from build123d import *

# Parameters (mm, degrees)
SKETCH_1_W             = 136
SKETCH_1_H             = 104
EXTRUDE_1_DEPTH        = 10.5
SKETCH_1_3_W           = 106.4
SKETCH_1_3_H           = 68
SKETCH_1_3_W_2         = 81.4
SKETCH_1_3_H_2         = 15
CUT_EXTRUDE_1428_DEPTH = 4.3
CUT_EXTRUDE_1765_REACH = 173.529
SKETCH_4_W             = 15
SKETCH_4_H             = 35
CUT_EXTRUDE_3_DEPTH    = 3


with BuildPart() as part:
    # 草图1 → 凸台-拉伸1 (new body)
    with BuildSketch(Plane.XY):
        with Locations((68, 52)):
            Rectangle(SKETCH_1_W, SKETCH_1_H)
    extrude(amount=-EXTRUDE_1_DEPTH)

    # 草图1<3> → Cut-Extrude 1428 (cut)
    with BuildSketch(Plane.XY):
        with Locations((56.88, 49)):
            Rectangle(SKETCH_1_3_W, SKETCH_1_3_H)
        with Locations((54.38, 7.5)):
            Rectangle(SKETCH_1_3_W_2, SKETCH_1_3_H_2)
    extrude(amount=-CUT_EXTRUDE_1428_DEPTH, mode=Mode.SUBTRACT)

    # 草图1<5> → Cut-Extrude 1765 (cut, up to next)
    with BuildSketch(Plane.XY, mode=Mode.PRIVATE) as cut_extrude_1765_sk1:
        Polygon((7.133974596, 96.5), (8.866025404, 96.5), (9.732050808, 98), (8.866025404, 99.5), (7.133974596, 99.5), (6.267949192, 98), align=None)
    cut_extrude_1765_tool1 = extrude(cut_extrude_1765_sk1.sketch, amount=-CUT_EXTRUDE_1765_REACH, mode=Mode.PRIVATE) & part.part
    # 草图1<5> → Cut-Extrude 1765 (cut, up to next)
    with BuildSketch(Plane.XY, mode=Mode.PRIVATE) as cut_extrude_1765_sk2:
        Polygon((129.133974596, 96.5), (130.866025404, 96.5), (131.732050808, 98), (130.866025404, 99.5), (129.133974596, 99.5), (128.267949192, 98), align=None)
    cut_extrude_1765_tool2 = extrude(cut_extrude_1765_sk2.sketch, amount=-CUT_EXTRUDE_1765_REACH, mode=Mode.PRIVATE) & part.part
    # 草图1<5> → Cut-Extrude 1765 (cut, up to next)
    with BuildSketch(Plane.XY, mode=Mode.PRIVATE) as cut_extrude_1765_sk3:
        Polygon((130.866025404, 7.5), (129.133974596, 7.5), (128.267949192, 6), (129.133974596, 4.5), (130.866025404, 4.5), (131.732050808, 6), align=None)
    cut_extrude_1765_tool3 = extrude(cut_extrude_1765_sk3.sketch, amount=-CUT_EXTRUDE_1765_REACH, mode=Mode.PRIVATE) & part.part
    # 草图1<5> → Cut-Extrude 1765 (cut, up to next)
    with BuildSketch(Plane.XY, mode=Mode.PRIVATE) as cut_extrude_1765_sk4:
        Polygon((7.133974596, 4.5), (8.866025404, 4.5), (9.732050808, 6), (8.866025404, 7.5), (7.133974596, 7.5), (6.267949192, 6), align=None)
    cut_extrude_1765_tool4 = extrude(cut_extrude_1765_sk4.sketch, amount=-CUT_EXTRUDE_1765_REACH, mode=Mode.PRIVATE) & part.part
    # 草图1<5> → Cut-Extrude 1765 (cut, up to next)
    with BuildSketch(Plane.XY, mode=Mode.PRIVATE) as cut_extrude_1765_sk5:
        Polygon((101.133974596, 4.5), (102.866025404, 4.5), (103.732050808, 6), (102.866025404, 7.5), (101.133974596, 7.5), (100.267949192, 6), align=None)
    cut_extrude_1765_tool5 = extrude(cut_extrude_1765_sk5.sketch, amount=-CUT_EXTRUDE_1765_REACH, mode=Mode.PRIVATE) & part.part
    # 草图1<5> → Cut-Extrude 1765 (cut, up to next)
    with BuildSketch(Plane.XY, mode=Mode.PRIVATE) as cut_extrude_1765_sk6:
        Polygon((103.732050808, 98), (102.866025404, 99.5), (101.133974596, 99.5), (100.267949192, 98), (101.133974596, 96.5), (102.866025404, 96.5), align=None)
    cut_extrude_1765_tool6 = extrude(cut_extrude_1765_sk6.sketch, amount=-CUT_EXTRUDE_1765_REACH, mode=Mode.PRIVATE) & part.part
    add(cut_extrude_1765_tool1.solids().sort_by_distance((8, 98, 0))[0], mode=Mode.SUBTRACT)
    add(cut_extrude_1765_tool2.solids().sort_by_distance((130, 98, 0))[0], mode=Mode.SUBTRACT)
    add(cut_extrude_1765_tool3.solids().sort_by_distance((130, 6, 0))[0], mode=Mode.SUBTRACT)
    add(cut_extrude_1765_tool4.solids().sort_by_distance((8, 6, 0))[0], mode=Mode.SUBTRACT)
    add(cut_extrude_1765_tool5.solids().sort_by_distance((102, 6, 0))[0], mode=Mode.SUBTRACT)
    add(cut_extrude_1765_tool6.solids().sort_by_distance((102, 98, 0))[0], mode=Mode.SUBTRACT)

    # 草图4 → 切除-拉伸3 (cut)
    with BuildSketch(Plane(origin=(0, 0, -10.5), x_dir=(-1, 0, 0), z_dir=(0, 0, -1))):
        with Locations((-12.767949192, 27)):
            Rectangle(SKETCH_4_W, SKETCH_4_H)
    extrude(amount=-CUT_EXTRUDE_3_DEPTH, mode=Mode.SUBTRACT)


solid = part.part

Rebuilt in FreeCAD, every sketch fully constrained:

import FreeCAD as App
import Part
import Sketcher
Q = App.Units.Quantity

doc = App.newDocument("Part")
params = doc.addObject("Spreadsheet::Sheet", "Params")
for row, (alias, value) in enumerate([
    ("sketch1_width", "136 mm"),
    ("sketch1_height", "104 mm"),
    ("pad1_length", "10.5 mm"),
    ("sketch2_width", "10 mm"),
    ("sketch2_width2", "15 mm"),
    ("sketch2_height", "68 mm"),
    ("sketch2_width3", "81.4 mm"),
    ("pocket1_length", "4.3 mm"),
    ("sketch9_width", "15 mm"),
    ("sketch9_height", "35 mm"),
    ("pocket8_length", "3 mm"),
], start=1):
    params.set(f"A{row}", alias)
    params.set(f"B{row}", "=" + value)
    params.setAlias(f"B{row}", alias)

body = doc.addObject("PartDesign::Body", "Body")

# Sketch on XY plane
sketch1 = body.newObject("Sketcher::SketchObject", "Sketch")
sketch1.AttachmentSupport = (doc.getObject("XY_Plane"), [""])
sketch1.MapMode = "FlatFace"
sketch1.addGeometry(Part.LineSegment(App.Vector(0, 104, 0), App.Vector(0, 0, 0)), False)
sketch1.addGeometry(Part.LineSegment(App.Vector(0, 0, 0), App.Vector(136, 0, 0)), False)
sketch1.addGeometry(Part.LineSegment(App.Vector(136, 0, 0), App.Vector(136, 104, 0)), False)
sketch1.addGeometry(Part.LineSegment(App.Vector(136, 104, 0), App.Vector(0, 104, 0)), False)
sketch1.addConstraint(Sketcher.Constraint("Coincident", 0, 2, 1, 1))
sketch1.addConstraint(Sketcher.Constraint("Coincident", 1, 2, 2, 1))
sketch1.addConstraint(Sketcher.Constraint("Coincident", 2, 2, 3, 1))
sketch1.addConstraint(Sketcher.Constraint("Coincident", 3, 2, 0, 1))
sketch1.addConstraint(Sketcher.Constraint("Vertical", 0))
sketch1.addConstraint(Sketcher.Constraint("Horizontal", 1))
sketch1.addConstraint(Sketcher.Constraint("Vertical", 2))
sketch1.addConstraint(Sketcher.Constraint("Horizontal", 3))
sketch1.addConstraint(Sketcher.Constraint("Coincident", 0, 2, -1, 1))
sketch1.addConstraint(Sketcher.Constraint("DistanceX", 1, 1, 1, 2, 136.0))
sketch1.addConstraint(Sketcher.Constraint("DistanceY", 0, 2, 0, 1, 104.0))
sketch1.setExpression("Constraints[9]", "Params.sketch1_width")
sketch1.setExpression("Constraints[10]", "Params.sketch1_height")
pad1 = body.newObject("PartDesign::Pad", "Pad")
pad1.Profile = sketch1
pad1.setExpression("Length", "Params.pad1_length")
pad1.Reversed = True

# Sketch on XY plane
sketch2 = body.newObject("Sketcher::SketchObject", "Sketch001")
sketch2.AttachmentSupport = (doc.getObject("XY_Plane"), [""])
sketch2.MapMode = "FlatFace"
sketch2.addGeometry(Part.LineSegment(App.Vector(4, 83, 0), App.Vector(4, 15, 0)), False)
sketch2.addGeometry(Part.LineSegment(App.Vector(4, 15, 0), App.Vector(14, 15, 0)), False)
sketch2.addGeometry(Part.LineSegment(App.Vector(14, 15, 0), App.Vector(14, 0, 0)), False)
sketch2.addGeometry(Part.LineSegment(App.Vector(14, 0, 0), App.Vector(95, 0, 0)), False)
sketch2.addGeometry(Part.LineSegment(App.Vector(95, 0, 0), App.Vector(95, 15, 0)), False)
sketch2.addGeometry(Part.LineSegment(App.Vector(95, 15, 0), App.Vector(110, 15, 0)), False)
sketch2.addGeometry(Part.LineSegment(App.Vector(110, 15, 0), App.Vector(110, 83, 0)), False)
sketch2.addGeometry(Part.LineSegment(App.Vector(110, 83, 0), App.Vector(4, 83, 0)), False)
sketch2.addConstraint(Sketcher.Constraint("Coincident", 0, 2, 1, 1))
sketch2.addConstraint(Sketcher.Constraint("Coincident", 1, 2, 2, 1))
sketch2.addConstraint(Sketcher.Constraint("Coincident", 2, 2, 3, 1))
sketch2.addConstraint(Sketcher.Constraint("Coincident", 3, 2, 4, 1))
sketch2.addConstraint(Sketcher.Constraint("Coincident", 4, 2, 5, 1))
sketch2.addConstraint(Sketcher.Constraint("Coincident", 5, 2, 6, 1))
sketch2.addConstraint(Sketcher.Constraint("Coincident", 6, 2, 7, 1))
sketch2.addConstraint(Sketcher.Constraint("Coincident", 7, 2, 0, 1))
sketch2.addConstraint(Sketcher.Constraint("Vertical", 0))
sketch2.addConstraint(Sketcher.Constraint("Horizontal", 1))
sketch2.addConstraint(Sketcher.Constraint("Vertical", 2))
sketch2.addConstraint(Sketcher.Constraint("Horizontal", 3))
sketch2.addConstraint(Sketcher.Constraint("Vertical", 4))
sketch2.addConstraint(Sketcher.Constraint("Horizontal", 5))
sketch2.addConstraint(Sketcher.Constraint("Vertical", 6))
sketch2.addConstraint(Sketcher.Constraint("Horizontal", 7))
sketch2.addConstraint(Sketcher.Constraint("PointOnObject", 2, 2, -1))
sketch2.addConstraint(Sketcher.Constraint("Horizontal", 1, 2, 4, 2))
sketch2.addConstraint(Sketcher.Constraint("Equal", 5, 2))
sketch2.addConstraint(Sketcher.Constraint("DistanceX", 1, 1, 1, 2, 10.0))
sketch2.addConstraint(Sketcher.Constraint("DistanceX", 5, 1, 5, 2, 15.0))
sketch2.addConstraint(Sketcher.Constraint("DistanceY", 0, 2, 0, 1, 68.0))
sketch2.addConstraint(Sketcher.Constraint("DistanceX", 3, 1, 3, 2, 81.4))
sketch2.addConstraint(Sketcher.Constraint("DistanceX", -1, 1, 0, 2, 3.68))
sketch2.setExpression("Constraints[19]", "Params.sketch2_width")
sketch2.setExpression("Constraints[20]", "Params.sketch2_width2")
sketch2.setExpression("Constraints[21]", "Params.sketch2_height")
sketch2.setExpression("Constraints[22]", "Params.sketch2_width3")
pocket1 = body.newObject("PartDesign::Pocket", "Pocket")
pocket1.Profile = sketch2
pocket1.setExpression("Length", "Params.pocket1_length")

# Sketch on XY plane
sketch3 = body.newObject("Sketcher::SketchObject", "Sketch002")
sketch3.AttachmentSupport = (doc.getObject("XY_Plane"), [""])
sketch3.MapMode = "FlatFace"
sketch3.addGeometry(Part.LineSegment(App.Vector(7.1, 96.5, 0), App.Vector(8.9, 96.5, 0)), False)
sketch3.addGeometry(Part.LineSegment(App.Vector(8.9, 96.5, 0), App.Vector(9.7, 98, 0)), False)
sketch3.addGeometry(Part.LineSegment(App.Vector(9.7, 98, 0), App.Vector(8.9, 99.5, 0)), False)
sketch3.addGeometry(Part.LineSegment(App.Vector(8.9, 99.5, 0), App.Vector(7.1, 99.5, 0)), False)
sketch3.addGeometry(Part.LineSegment(App.Vector(7.1, 99.5, 0), App.Vector(6.3, 98, 0)), False)
sketch3.addGeometry(Part.LineSegment(App.Vector(6.3, 98, 0), App.Vector(7.1, 96.5, 0)), False)
sketch3.addConstraint(Sketcher.Constraint("Coincident", 0, 2, 1, 1))
sketch3.addConstraint(Sketcher.Constraint("Coincident", 1, 2, 2, 1))
sketch3.addConstraint(Sketcher.Constraint("Coincident", 2, 2, 3, 1))
sketch3.addConstraint(Sketcher.Constraint("Coincident", 3, 2, 4, 1))
sketch3.addConstraint(Sketcher.Constraint("Coincident", 4, 2, 5, 1))
sketch3.addConstraint(Sketcher.Constraint("Coincident", 5, 2, 0, 1))
sketch3.addConstraint(Sketcher.Constraint("Horizontal", 0))
sketch3.addConstraint(Sketcher.Constraint("Horizontal", 3))
sketch3.addConstraint(Sketcher.Constraint("Parallel", 1, 4))
sketch3.addConstraint(Sketcher.Constraint("Parallel", 2, 5))
sketch3.addConstraint(Sketcher.Constraint("Horizontal", 1, 2, 4, 2))
sketch3.addConstraint(Sketcher.Constraint("Vertical", 0, 2, 2, 2))
sketch3.addConstraint(Sketcher.Constraint("Vertical", 3, 2, 5, 2))
sketch3.addConstraint(Sketcher.Constraint("Angle", 1, Q("60 deg")))
sketch3.addConstraint(Sketcher.Constraint("DistanceY", -1, 1, 1, 2, 98.0))
sketch3.addConstraint(Sketcher.Constraint("DistanceY", 0, 2, 2, 2, 3.0))
sketch3.addConstraint(Sketcher.Constraint("DistanceX", 0, 1, 0, 2, 1.732051))
sketch3.addConstraint(Sketcher.Constraint("DistanceX", -1, 1, 1, 2, 9.732051))
pocket2 = body.newObject("PartDesign::Pocket", "Pocket001")
pocket2.Profile = sketch3
pocket2.Type = "UpToFirst"

# Sketch on XY plane
sketch4 = body.newObject("Sketcher::SketchObject", "Sketch003")
sketch4.AttachmentSupport = (doc.getObject("XY_Plane"), [""])
sketch4.MapMode = "FlatFace"
sketch4.addGeometry(Part.LineSegment(App.Vector(129.1, 96.5, 0), App.Vector(130.9, 96.5, 0)), False)
sketch4.addGeometry(Part.LineSegment(App.Vector(130.9, 96.5, 0), App.Vector(131.7, 98, 0)), False)
sketch4.addGeometry(Part.LineSegment(App.Vector(131.7, 98, 0), App.Vector(130.9, 99.5, 0)), False)
sketch4.addGeometry(Part.LineSegment(App.Vector(130.9, 99.5, 0), App.Vector(129.1, 99.5, 0)), False)
sketch4.addGeometry(Part.LineSegment(App.Vector(129.1, 99.5, 0), App.Vector(128.3, 98, 0)), False)
sketch4.addGeometry(Part.LineSegment(App.Vector(128.3, 98, 0), App.Vector(129.1, 96.5, 0)), False)
sketch4.addConstraint(Sketcher.Constraint("Coincident", 0, 2, 1, 1))
sketch4.addConstraint(Sketcher.Constraint("Coincident", 1, 2, 2, 1))
sketch4.addConstraint(Sketcher.Constraint("Coincident", 2, 2, 3, 1))
sketch4.addConstraint(Sketcher.Constraint("Coincident", 3, 2, 4, 1))
sketch4.addConstraint(Sketcher.Constraint("Coincident", 4, 2, 5, 1))
sketch4.addConstraint(Sketcher.Constraint("Coincident", 5, 2, 0, 1))
sketch4.addConstraint(Sketcher.Constraint("Horizontal", 0))
sketch4.addConstraint(Sketcher.Constraint("Horizontal", 3))
sketch4.addConstraint(Sketcher.Constraint("Parallel", 1, 4))
sketch4.addConstraint(Sketcher.Constraint("Parallel", 2, 5))
sketch4.addConstraint(Sketcher.Constraint("Horizontal", 1, 2, 4, 2))
sketch4.addConstraint(Sketcher.Constraint("Vertical", 0, 2, 2, 2))
sketch4.addConstraint(Sketcher.Constraint("Vertical", 3, 2, 5, 2))
sketch4.addConstraint(Sketcher.Constraint("Angle", 1, Q("60 deg")))
sketch4.addConstraint(Sketcher.Constraint("DistanceY", -1, 1, 1, 2, 98.0))
sketch4.addConstraint(Sketcher.Constraint("DistanceY", 0, 2, 2, 2, 3.0))
sketch4.addConstraint(Sketcher.Constraint("DistanceX", 0, 1, 0, 2, 1.732051))
sketch4.addConstraint(Sketcher.Constraint("DistanceX", -1, 1, 1, 2, 131.732051))
pocket3 = body.newObject("PartDesign::Pocket", "Pocket002")
pocket3.Profile = sketch4
pocket3.Type = "UpToFirst"

# Sketch on XY plane
sketch5 = body.newObject("Sketcher::SketchObject", "Sketch004")
sketch5.AttachmentSupport = (doc.getObject("XY_Plane"), [""])
sketch5.MapMode = "FlatFace"
sketch5.addGeometry(Part.LineSegment(App.Vector(130.9, 7.5, 0), App.Vector(129.1, 7.5, 0)), False)
sketch5.addGeometry(Part.LineSegment(App.Vector(129.1, 7.5, 0), App.Vector(128.3, 6, 0)), False)
sketch5.addGeometry(Part.LineSegment(App.Vector(128.3, 6, 0), App.Vector(129.1, 4.5, 0)), False)
sketch5.addGeometry(Part.LineSegment(App.Vector(129.1, 4.5, 0), App.Vector(130.9, 4.5, 0)), False)
sketch5.addGeometry(Part.LineSegment(App.Vector(130.9, 4.5, 0), App.Vector(131.7, 6, 0)), False)
sketch5.addGeometry(Part.LineSegment(App.Vector(131.7, 6, 0), App.Vector(130.9, 7.5, 0)), False)
sketch5.addConstraint(Sketcher.Constraint("Coincident", 0, 2, 1, 1))
sketch5.addConstraint(Sketcher.Constraint("Coincident", 1, 2, 2, 1))
sketch5.addConstraint(Sketcher.Constraint("Coincident", 2, 2, 3, 1))
sketch5.addConstraint(Sketcher.Constraint("Coincident", 3, 2, 4, 1))
sketch5.addConstraint(Sketcher.Constraint("Coincident", 4, 2, 5, 1))
sketch5.addConstraint(Sketcher.Constraint("Coincident", 5, 2, 0, 1))
sketch5.addConstraint(Sketcher.Constraint("Horizontal", 0))
sketch5.addConstraint(Sketcher.Constraint("Horizontal", 3))
sketch5.addConstraint(Sketcher.Constraint("Parallel", 1, 4))
sketch5.addConstraint(Sketcher.Constraint("Parallel", 2, 5))
sketch5.addConstraint(Sketcher.Constraint("Horizontal", 1, 2, 4, 2))
sketch5.addConstraint(Sketcher.Constraint("Vertical", 0, 2, 2, 2))
sketch5.addConstraint(Sketcher.Constraint("Vertical", 3, 2, 5, 2))
sketch5.addConstraint(Sketcher.Constraint("Angle", 1, Q("-120 deg")))
sketch5.addConstraint(Sketcher.Constraint("DistanceY", -1, 1, 1, 2, 6.0))
sketch5.addConstraint(Sketcher.Constraint("DistanceY", 2, 2, 0, 2, 3.0))
sketch5.addConstraint(Sketcher.Constraint("DistanceX", 0, 2, 0, 1, 1.732051))
sketch5.addConstraint(Sketcher.Constraint("DistanceX", -1, 1, 1, 2, 128.267949))
pocket4 = body.newObject("PartDesign::Pocket", "Pocket003")
pocket4.Profile = sketch5
pocket4.Type = "UpToFirst"

# Sketch on XY plane
sketch6 = body.newObject("Sketcher::SketchObject", "Sketch005")
sketch6.AttachmentSupport = (doc.getObject("XY_Plane"), [""])
sketch6.MapMode = "FlatFace"
sketch6.addGeometry(Part.LineSegment(App.Vector(7.1, 4.5, 0), App.Vector(8.9, 4.5, 0)), False)
sketch6.addGeometry(Part.LineSegment(App.Vector(8.9, 4.5, 0), App.Vector(9.7, 6, 0)), False)
sketch6.addGeometry(Part.LineSegment(App.Vector(9.7, 6, 0), App.Vector(8.9, 7.5, 0)), False)
sketch6.addGeometry(Part.LineSegment(App.Vector(8.9, 7.5, 0), App.Vector(7.1, 7.5, 0)), False)
sketch6.addGeometry(Part.LineSegment(App.Vector(7.1, 7.5, 0), App.Vector(6.3, 6, 0)), False)
sketch6.addGeometry(Part.LineSegment(App.Vector(6.3, 6, 0), App.Vector(7.1, 4.5, 0)), False)
sketch6.addConstraint(Sketcher.Constraint("Coincident", 0, 2, 1, 1))
sketch6.addConstraint(Sketcher.Constraint("Coincident", 1, 2, 2, 1))
sketch6.addConstraint(Sketcher.Constraint("Coincident", 2, 2, 3, 1))
sketch6.addConstraint(Sketcher.Constraint("Coincident", 3, 2, 4, 1))
sketch6.addConstraint(Sketcher.Constraint("Coincident", 4, 2, 5, 1))
sketch6.addConstraint(Sketcher.Constraint("Coincident", 5, 2, 0, 1))
sketch6.addConstraint(Sketcher.Constraint("Horizontal", 0))
sketch6.addConstraint(Sketcher.Constraint("Horizontal", 3))
sketch6.addConstraint(Sketcher.Constraint("Parallel", 1, 4))
sketch6.addConstraint(Sketcher.Constraint("Parallel", 2, 5))
sketch6.addConstraint(Sketcher.Constraint("Horizontal", 1, 2, 4, 2))
sketch6.addConstraint(Sketcher.Constraint("Vertical", 0, 2, 2, 2))
sketch6.addConstraint(Sketcher.Constraint("Vertical", 3, 2, 5, 2))
sketch6.addConstraint(Sketcher.Constraint("Angle", 1, Q("60 deg")))
sketch6.addConstraint(Sketcher.Constraint("DistanceY", -1, 1, 1, 2, 6.0))
sketch6.addConstraint(Sketcher.Constraint("DistanceY", 0, 2, 2, 2, 3.0))
sketch6.addConstraint(Sketcher.Constraint("DistanceX", 0, 1, 0, 2, 1.732051))
sketch6.addConstraint(Sketcher.Constraint("DistanceX", -1, 1, 1, 2, 9.732051))
pocket5 = body.newObject("PartDesign::Pocket", "Pocket004")
pocket5.Profile = sketch6
pocket5.Type = "UpToFirst"

# Sketch on XY plane
sketch7 = body.newObject("Sketcher::SketchObject", "Sketch006")
sketch7.AttachmentSupport = (doc.getObject("XY_Plane"), [""])
sketch7.MapMode = "FlatFace"
sketch7.addGeometry(Part.LineSegment(App.Vector(101.1, 4.5, 0), App.Vector(102.9, 4.5, 0)), False)
sketch7.addGeometry(Part.LineSegment(App.Vector(102.9, 4.5, 0), App.Vector(103.7, 6, 0)), False)
sketch7.addGeometry(Part.LineSegment(App.Vector(103.7, 6, 0), App.Vector(102.9, 7.5, 0)), False)
sketch7.addGeometry(Part.LineSegment(App.Vector(102.9, 7.5, 0), App.Vector(101.1, 7.5, 0)), False)
sketch7.addGeometry(Part.LineSegment(App.Vector(101.1, 7.5, 0), App.Vector(100.3, 6, 0)), False)
sketch7.addGeometry(Part.LineSegment(App.Vector(100.3, 6, 0), App.Vector(101.1, 4.5, 0)), False)
sketch7.addConstraint(Sketcher.Constraint("Coincident", 0, 2, 1, 1))
sketch7.addConstraint(Sketcher.Constraint("Coincident", 1, 2, 2, 1))
sketch7.addConstraint(Sketcher.Constraint("Coincident", 2, 2, 3, 1))
sketch7.addConstraint(Sketcher.Constraint("Coincident", 3, 2, 4, 1))
sketch7.addConstraint(Sketcher.Constraint("Coincident", 4, 2, 5, 1))
sketch7.addConstraint(Sketcher.Constraint("Coincident", 5, 2, 0, 1))
sketch7.addConstraint(Sketcher.Constraint("Horizontal", 0))
sketch7.addConstraint(Sketcher.Constraint("Horizontal", 3))
sketch7.addConstraint(Sketcher.Constraint("Parallel", 1, 4))
sketch7.addConstraint(Sketcher.Constraint("Parallel", 2, 5))
sketch7.addConstraint(Sketcher.Constraint("Horizontal", 1, 2, 4, 2))
sketch7.addConstraint(Sketcher.Constraint("Vertical", 0, 2, 2, 2))
sketch7.addConstraint(Sketcher.Constraint("Vertical", 3, 2, 5, 2))
sketch7.addConstraint(Sketcher.Constraint("Angle", 1, Q("60 deg")))
sketch7.addConstraint(Sketcher.Constraint("DistanceY", -1, 1, 1, 2, 6.0))
sketch7.addConstraint(Sketcher.Constraint("DistanceY", 0, 2, 2, 2, 3.0))
sketch7.addConstraint(Sketcher.Constraint("DistanceX", 0, 1, 0, 2, 1.732051))
sketch7.addConstraint(Sketcher.Constraint("DistanceX", -1, 1, 1, 2, 103.732051))
pocket6 = body.newObject("PartDesign::Pocket", "Pocket005")
pocket6.Profile = sketch7
pocket6.Type = "UpToFirst"

# Sketch on XY plane
sketch8 = body.newObject("Sketcher::SketchObject", "Sketch007")
sketch8.AttachmentSupport = (doc.getObject("XY_Plane"), [""])
sketch8.MapMode = "FlatFace"
sketch8.addGeometry(Part.LineSegment(App.Vector(103.7, 98, 0), App.Vector(102.9, 99.5, 0)), False)
sketch8.addGeometry(Part.LineSegment(App.Vector(102.9, 99.5, 0), App.Vector(101.1, 99.5, 0)), False)
sketch8.addGeometry(Part.LineSegment(App.Vector(101.1, 99.5, 0), App.Vector(100.3, 98, 0)), False)
sketch8.addGeometry(Part.LineSegment(App.Vector(100.3, 98, 0), App.Vector(101.1, 96.5, 0)), False)
sketch8.addGeometry(Part.LineSegment(App.Vector(101.1, 96.5, 0), App.Vector(102.9, 96.5, 0)), False)
sketch8.addGeometry(Part.LineSegment(App.Vector(102.9, 96.5, 0), App.Vector(103.7, 98, 0)), False)
sketch8.addConstraint(Sketcher.Constraint("Coincident", 0, 2, 1, 1))
sketch8.addConstraint(Sketcher.Constraint("Coincident", 1, 2, 2, 1))
sketch8.addConstraint(Sketcher.Constraint("Coincident", 2, 2, 3, 1))
sketch8.addConstraint(Sketcher.Constraint("Coincident", 3, 2, 4, 1))
sketch8.addConstraint(Sketcher.Constraint("Coincident", 4, 2, 5, 1))
sketch8.addConstraint(Sketcher.Constraint("Coincident", 5, 2, 0, 1))
sketch8.addConstraint(Sketcher.Constraint("Horizontal", 1))
sketch8.addConstraint(Sketcher.Constraint("Horizontal", 4))
sketch8.addConstraint(Sketcher.Constraint("Parallel", 0, 3))
sketch8.addConstraint(Sketcher.Constraint("Parallel", 2, 5))
sketch8.addConstraint(Sketcher.Constraint("Horizontal", 2, 2, 5, 2))
sketch8.addConstraint(Sketcher.Constraint("Vertical", 1, 2, 3, 2))
sketch8.addConstraint(Sketcher.Constraint("Vertical", 0, 2, 4, 2))
sketch8.addConstraint(Sketcher.Constraint("Angle", 0, Q("120 deg")))
sketch8.addConstraint(Sketcher.Constraint("DistanceY", -1, 1, 2, 2, 98.0))
sketch8.addConstraint(Sketcher.Constraint("DistanceY", 3, 2, 1, 2, 3.0))
sketch8.addConstraint(Sketcher.Constraint("DistanceX", 1, 2, 1, 1, 1.732051))
sketch8.addConstraint(Sketcher.Constraint("DistanceX", -1, 1, 2, 2, 100.267949))
pocket7 = body.newObject("PartDesign::Pocket", "Pocket006")
pocket7.Profile = sketch8
pocket7.Type = "UpToFirst"

# Sketch on XY plane
sketch9 = body.newObject("Sketcher::SketchObject", "Sketch008")
sketch9.AttachmentSupport = (doc.getObject("XY_Plane"), [""])
sketch9.MapMode = "FlatFace"
sketch9.AttachmentOffset = App.Placement(App.Vector(0, 0, -10.5), App.Rotation())
sketch9.addGeometry(Part.LineSegment(App.Vector(20, 44, 0), App.Vector(20, 10, 0)), False)
sketch9.addGeometry(Part.LineSegment(App.Vector(20, 10, 0), App.Vector(5, 10, 0)), False)
sketch9.addGeometry(Part.LineSegment(App.Vector(5, 10, 0), App.Vector(5, 44, 0)), False)
sketch9.addGeometry(Part.LineSegment(App.Vector(5, 44, 0), App.Vector(20, 44, 0)), False)
sketch9.addConstraint(Sketcher.Constraint("Coincident", 0, 2, 1, 1))
sketch9.addConstraint(Sketcher.Constraint("Coincident", 1, 2, 2, 1))
sketch9.addConstraint(Sketcher.Constraint("Coincident", 2, 2, 3, 1))
sketch9.addConstraint(Sketcher.Constraint("Coincident", 3, 2, 0, 1))
sketch9.addConstraint(Sketcher.Constraint("Vertical", 0))
sketch9.addConstraint(Sketcher.Constraint("Horizontal", 1))
sketch9.addConstraint(Sketcher.Constraint("Vertical", 2))
sketch9.addConstraint(Sketcher.Constraint("Horizontal", 3))
sketch9.addConstraint(Sketcher.Constraint("DistanceX", 1, 2, 1, 1, 15.0))
sketch9.addConstraint(Sketcher.Constraint("DistanceY", 0, 2, 0, 1, 35.0))
sketch9.addConstraint(Sketcher.Constraint("DistanceY", -1, 1, 0, 2, 9.5))
sketch9.addConstraint(Sketcher.Constraint("DistanceX", -1, 1, 0, 2, 20.267949))
sketch9.setExpression("Constraints[8]", "Params.sketch9_width")
sketch9.setExpression("Constraints[9]", "Params.sketch9_height")
pocket8 = body.newObject("PartDesign::Pocket", "Pocket007")
pocket8.Profile = sketch9
pocket8.setExpression("Length", "Params.pocket8_length")
pocket8.Reversed = True

doc.recompute()
